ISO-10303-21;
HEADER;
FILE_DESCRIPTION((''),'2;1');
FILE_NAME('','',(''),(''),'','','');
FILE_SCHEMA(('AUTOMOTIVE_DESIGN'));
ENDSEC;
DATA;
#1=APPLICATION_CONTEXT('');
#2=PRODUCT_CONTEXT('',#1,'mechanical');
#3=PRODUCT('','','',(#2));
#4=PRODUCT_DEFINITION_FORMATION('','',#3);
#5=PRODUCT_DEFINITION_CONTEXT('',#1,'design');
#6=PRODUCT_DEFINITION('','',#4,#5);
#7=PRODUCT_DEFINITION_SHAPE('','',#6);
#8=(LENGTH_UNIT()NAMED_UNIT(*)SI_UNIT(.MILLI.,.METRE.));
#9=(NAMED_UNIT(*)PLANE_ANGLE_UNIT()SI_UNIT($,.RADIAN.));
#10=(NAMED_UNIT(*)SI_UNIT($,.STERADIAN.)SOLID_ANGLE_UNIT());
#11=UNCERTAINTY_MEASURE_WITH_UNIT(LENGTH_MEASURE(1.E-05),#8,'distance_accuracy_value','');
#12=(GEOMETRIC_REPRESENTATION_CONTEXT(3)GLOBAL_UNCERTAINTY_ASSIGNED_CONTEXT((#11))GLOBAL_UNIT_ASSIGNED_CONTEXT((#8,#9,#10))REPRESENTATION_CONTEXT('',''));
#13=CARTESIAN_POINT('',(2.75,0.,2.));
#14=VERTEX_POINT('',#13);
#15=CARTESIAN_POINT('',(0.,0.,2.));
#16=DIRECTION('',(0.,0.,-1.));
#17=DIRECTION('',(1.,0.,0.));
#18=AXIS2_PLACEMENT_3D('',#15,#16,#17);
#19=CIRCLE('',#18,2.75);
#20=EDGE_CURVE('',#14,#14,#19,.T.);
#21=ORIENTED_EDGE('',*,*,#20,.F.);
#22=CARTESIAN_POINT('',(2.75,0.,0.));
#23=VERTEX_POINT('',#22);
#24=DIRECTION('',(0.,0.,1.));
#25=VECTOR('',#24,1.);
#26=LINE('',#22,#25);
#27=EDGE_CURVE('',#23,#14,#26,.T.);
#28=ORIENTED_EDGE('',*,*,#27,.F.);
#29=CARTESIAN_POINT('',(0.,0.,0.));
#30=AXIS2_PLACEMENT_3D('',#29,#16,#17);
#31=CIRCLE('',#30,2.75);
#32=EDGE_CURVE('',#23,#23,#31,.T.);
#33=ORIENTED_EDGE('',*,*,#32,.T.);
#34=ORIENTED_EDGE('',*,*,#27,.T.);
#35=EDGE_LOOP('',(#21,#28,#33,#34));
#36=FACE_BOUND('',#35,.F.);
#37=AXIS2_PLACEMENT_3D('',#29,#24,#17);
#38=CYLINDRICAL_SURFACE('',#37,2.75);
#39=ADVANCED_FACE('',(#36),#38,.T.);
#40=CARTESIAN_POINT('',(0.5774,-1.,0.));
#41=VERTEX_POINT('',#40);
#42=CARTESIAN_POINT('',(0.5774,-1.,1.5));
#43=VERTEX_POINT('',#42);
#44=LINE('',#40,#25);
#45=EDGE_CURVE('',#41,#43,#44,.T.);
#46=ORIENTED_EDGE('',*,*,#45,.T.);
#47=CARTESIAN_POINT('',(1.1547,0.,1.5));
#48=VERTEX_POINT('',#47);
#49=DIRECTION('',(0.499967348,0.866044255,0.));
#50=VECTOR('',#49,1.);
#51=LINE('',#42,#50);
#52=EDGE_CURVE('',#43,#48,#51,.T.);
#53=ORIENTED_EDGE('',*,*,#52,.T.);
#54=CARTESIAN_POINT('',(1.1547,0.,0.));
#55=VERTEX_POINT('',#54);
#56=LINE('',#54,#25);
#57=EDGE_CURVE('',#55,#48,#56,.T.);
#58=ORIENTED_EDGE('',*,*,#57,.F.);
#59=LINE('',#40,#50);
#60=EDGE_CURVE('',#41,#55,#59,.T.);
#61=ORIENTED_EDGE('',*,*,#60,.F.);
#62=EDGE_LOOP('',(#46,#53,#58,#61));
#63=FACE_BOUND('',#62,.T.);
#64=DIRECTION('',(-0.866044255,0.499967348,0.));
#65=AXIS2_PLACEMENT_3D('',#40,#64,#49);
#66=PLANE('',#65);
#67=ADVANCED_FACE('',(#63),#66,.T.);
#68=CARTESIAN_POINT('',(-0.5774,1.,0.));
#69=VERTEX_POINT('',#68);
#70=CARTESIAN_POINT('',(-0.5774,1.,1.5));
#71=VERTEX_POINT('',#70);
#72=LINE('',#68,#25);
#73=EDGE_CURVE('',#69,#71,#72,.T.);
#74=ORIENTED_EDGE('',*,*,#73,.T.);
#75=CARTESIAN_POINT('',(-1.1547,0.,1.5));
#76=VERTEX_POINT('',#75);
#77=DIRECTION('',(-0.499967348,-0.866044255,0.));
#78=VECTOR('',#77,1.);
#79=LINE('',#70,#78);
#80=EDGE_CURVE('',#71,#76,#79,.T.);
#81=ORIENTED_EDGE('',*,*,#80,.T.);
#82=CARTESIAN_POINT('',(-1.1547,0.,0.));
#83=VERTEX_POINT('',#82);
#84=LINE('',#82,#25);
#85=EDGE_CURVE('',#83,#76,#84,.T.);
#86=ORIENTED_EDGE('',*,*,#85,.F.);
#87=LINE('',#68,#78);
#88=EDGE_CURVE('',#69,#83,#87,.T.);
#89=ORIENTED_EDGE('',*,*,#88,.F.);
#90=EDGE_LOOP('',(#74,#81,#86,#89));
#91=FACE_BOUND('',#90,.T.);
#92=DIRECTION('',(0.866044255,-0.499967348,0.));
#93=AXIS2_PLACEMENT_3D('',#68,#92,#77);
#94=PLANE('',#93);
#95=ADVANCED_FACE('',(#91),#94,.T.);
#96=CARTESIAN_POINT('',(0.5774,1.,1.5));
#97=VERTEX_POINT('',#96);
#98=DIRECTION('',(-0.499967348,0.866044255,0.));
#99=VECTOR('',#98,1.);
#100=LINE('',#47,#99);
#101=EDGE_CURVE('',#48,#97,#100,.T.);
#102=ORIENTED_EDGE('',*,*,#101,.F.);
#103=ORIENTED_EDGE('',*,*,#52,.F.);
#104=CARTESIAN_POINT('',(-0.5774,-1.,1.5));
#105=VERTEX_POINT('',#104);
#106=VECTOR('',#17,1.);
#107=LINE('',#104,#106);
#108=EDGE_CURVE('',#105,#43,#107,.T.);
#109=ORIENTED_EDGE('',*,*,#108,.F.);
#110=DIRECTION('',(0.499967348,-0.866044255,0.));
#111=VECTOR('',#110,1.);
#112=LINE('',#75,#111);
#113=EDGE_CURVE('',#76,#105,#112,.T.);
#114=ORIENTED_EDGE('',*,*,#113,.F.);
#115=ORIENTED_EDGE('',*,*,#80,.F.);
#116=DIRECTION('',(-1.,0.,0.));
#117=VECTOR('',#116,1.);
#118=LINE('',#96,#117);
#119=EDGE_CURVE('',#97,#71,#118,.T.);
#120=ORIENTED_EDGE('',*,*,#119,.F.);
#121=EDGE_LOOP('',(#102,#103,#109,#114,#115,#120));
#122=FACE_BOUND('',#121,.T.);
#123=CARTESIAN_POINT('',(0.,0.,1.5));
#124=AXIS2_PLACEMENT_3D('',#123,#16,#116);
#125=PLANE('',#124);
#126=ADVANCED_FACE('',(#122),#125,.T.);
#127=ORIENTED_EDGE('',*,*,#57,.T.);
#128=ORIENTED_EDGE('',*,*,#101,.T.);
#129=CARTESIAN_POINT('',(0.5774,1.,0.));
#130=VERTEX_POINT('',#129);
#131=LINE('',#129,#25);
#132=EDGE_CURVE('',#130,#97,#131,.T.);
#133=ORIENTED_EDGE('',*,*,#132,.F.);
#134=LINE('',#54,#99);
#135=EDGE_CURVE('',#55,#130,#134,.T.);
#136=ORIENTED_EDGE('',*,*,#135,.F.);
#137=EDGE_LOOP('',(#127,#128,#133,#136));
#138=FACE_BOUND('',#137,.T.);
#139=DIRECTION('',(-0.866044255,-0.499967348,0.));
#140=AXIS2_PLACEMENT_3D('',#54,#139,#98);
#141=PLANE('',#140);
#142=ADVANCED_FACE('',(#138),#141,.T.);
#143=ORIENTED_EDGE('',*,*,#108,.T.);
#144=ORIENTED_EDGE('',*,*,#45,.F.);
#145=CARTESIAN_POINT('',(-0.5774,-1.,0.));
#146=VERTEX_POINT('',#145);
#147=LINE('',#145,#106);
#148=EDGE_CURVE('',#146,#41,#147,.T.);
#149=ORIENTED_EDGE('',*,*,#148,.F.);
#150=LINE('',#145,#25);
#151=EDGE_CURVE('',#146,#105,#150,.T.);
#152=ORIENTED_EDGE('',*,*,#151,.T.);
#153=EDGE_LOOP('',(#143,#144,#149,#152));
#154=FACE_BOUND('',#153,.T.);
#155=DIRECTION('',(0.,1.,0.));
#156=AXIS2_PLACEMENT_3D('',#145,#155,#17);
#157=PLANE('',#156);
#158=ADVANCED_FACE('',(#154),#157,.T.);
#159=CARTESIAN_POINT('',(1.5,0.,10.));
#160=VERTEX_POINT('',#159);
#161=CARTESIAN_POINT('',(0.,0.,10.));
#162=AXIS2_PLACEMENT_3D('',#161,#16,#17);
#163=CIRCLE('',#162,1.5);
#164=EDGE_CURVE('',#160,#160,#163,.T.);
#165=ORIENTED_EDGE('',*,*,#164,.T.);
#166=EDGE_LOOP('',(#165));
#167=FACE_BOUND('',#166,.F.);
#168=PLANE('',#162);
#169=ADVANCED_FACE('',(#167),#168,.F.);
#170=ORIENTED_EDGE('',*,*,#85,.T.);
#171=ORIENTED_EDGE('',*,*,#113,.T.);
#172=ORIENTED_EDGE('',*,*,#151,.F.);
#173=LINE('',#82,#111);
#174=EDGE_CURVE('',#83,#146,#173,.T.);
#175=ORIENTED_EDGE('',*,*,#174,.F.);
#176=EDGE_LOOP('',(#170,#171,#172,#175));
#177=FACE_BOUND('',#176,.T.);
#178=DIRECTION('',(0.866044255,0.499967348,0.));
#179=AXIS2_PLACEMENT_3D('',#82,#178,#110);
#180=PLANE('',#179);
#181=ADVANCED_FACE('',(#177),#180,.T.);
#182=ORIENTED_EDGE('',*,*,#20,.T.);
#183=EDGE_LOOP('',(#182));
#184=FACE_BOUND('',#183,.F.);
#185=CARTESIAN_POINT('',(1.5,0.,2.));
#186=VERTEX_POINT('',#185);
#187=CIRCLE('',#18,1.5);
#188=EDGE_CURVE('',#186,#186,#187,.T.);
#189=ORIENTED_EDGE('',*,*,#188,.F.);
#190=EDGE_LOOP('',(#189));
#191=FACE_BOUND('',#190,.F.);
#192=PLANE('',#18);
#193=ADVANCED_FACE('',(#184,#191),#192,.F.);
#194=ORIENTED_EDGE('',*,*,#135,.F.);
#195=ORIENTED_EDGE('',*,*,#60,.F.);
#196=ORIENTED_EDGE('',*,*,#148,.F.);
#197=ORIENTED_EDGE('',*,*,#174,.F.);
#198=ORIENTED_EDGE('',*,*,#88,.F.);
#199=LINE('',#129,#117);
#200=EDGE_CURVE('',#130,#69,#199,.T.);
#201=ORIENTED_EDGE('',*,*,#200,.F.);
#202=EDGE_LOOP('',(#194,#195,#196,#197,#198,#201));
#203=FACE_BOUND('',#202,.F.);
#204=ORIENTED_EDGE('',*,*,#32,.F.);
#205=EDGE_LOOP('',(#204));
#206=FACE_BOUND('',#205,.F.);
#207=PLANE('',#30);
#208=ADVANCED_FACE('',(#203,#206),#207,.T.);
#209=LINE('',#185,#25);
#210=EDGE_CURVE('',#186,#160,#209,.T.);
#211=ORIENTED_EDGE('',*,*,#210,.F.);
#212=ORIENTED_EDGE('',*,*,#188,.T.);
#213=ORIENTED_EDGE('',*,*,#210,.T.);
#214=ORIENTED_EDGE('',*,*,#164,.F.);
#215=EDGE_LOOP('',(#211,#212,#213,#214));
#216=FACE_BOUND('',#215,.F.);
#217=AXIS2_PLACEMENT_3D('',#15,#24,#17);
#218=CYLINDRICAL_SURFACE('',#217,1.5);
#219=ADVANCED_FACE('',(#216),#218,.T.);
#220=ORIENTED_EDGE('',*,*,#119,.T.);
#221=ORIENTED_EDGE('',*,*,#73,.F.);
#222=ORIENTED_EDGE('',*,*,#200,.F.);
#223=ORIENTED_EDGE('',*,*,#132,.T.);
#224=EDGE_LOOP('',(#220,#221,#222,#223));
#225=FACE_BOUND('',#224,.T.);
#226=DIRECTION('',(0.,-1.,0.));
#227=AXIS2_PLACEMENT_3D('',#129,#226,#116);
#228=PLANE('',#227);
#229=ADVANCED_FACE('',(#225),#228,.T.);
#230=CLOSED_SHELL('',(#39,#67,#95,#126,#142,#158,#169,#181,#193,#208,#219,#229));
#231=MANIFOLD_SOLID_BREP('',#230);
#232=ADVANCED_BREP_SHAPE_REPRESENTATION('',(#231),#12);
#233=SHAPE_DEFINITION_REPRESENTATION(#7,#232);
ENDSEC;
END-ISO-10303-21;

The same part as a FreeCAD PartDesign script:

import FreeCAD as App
import Part
import Sketcher

V = App.Vector


def add_polygon(sketch, points):
    """Adds a closed chain of lines whose ends are joined by coincident constraints."""
    first, n = sketch.GeometryCount, len(points)
    for a, b in zip(points, points[1:] + points[:1]):
        sketch.addGeometry(Part.LineSegment(App.Vector(*a, 0), App.Vector(*b, 0)), False)
    for i in range(n):
        sketch.addConstraint(Sketcher.Constraint("Coincident", first + i, 2, first + (i + 1) % n, 1))

doc = App.newDocument("Part")
body = doc.addObject("PartDesign::Body", "Body")

sketch1 = body.newObject("Sketcher::SketchObject", "Sketch")
sketch1.AttachmentSupport = (doc.getObject("XZ_Plane"), [""])
sketch1.MapMode = "FlatFace"
add_polygon(sketch1, [(2.8, 0), (0, 0), (0, 10), (1.5, 10), (1.5, 2), (2.8, 2)])
sketch1.addConstraint(Sketcher.Constraint("Horizontal", 0))
sketch1.addConstraint(Sketcher.Constraint("Vertical", 1))
sketch1.addConstraint(Sketcher.Constraint("Horizontal", 2))
sketch1.addConstraint(Sketcher.Constraint("Vertical", 3))
sketch1.addConstraint(Sketcher.Constraint("Horizontal", 4))
sketch1.addConstraint(Sketcher.Constraint("Vertical", 5))
sketch1.addConstraint(Sketcher.Constraint("Coincident", 0, 2, -1, 1))
sketch1.addConstraint(Sketcher.Constraint("DistanceY", 3, 2, 3, 1, 8.0))
sketch1.addConstraint(Sketcher.Constraint("DistanceY", 5, 2, 5, 1, 2.0))
sketch1.addConstraint(Sketcher.Constraint("DistanceX", 2, 1, 2, 2, 1.5))
sketch1.addConstraint(Sketcher.Constraint("DistanceX", 0, 2, 0, 1, 2.75))
revolution = body.newObject("PartDesign::Revolution", "Revolution")
revolution.Profile = sketch1
revolution.ReferenceAxis = (sketch1, ["V_Axis"])
revolution.Angle = 360

sketch2 = body.newObject("Sketcher::SketchObject", "Sketch001")
sketch2.AttachmentSupport = (doc.getObject("XY_Plane"), [""])
sketch2.MapMode = "FlatFace"
add_polygon(sketch2, [(-1.2, 0), (-0.6, 1), (0.6, 1), (1.2, 0), (0.6, -1), (-0.6, -1)])
sketch2.addConstraint(Sketcher.Constraint("Horizontal", 1))
sketch2.addConstraint(Sketcher.Constraint("Horizontal", 4))
sketch2.addConstraint(Sketcher.Constraint("Symmetric", 0, 2, 3, 2, -1, 1))
sketch2.addConstraint(Sketcher.Constraint("Symmetric", 2, 2, 5, 2, -1, 1))
sketch2.addConstraint(Sketcher.Constraint("PointOnObject", 2, 2, -1))
sketch2.addConstraint(Sketcher.Constraint("Parallel", 2, 5))
sketch2.addConstraint(Sketcher.Constraint("Vertical", 1, 2, 3, 2))
sketch2.addConstraint(Sketcher.Constraint("DistanceY", 3, 2, 1, 2, 2.0))
sketch2.addConstraint(Sketcher.Constraint("DistanceX", 1, 1, 1, 2, 1.1548))
sketch2.addConstraint(Sketcher.Constraint("DistanceX", 0, 2, 2, 2, 1.732))
pocket1 = body.newObject("PartDesign::Pocket", "Pocket")
pocket1.Profile = sketch2
pocket1.Length = 1.5
pocket1.Reversed = True

doc.recompute()
